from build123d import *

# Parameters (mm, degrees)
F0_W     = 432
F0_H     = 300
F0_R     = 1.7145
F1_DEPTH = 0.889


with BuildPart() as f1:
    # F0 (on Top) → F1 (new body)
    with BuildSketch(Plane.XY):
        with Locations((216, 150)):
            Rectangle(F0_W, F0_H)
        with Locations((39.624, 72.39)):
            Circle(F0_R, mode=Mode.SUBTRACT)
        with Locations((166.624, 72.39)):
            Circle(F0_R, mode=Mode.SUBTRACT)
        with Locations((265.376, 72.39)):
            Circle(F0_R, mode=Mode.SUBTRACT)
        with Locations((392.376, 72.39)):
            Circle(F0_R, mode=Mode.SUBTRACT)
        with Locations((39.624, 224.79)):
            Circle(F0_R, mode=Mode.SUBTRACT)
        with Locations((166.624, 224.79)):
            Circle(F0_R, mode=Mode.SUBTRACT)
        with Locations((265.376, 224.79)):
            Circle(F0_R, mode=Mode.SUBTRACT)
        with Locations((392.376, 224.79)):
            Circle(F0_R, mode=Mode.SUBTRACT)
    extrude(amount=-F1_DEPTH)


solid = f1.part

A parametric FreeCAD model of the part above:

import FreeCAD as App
import Part
import Sketcher
from FreeCAD import Vector


def add_polygon(sketch, points):
    """Adds a closed chain of lines whose ends are joined by coincident constraints."""
    first, n = sketch.GeometryCount, len(points)
    for a, b in zip(points, points[1:] + points[:1]):
        sketch.addGeometry(Part.LineSegment(App.Vector(*a, 0), App.Vector(*b, 0)), False)
    for i in range(n):
        sketch.addConstraint(Sketcher.Constraint("Coincident", first + i, 2, first + (i + 1) % n, 1))

doc = App.newDocument("Part")
params = doc.addObject("Spreadsheet::Sheet", "Params")
for row, (alias, value) in enumerate([
    ("sketch1_width", "432 mm"),
    ("sketch1_height", "300 mm"),
    ("pad1_length", "0.889 mm"),
], start=1):
    params.set(f"A{row}", alias)
    params.set(f"B{row}", "=" + value)
    params.setAlias(f"B{row}", alias)

body = doc.addObject("PartDesign::Body", "Body")

sketch1 = doc.addObject("Sketcher::SketchObject", "Sketch")
body.addObject(sketch1)
sketch1.AttachmentSupport = (doc.XY_Plane, [""])
sketch1.MapMode = "FlatFace"
add_polygon(sketch1, [(0, 300), (0, 0), (432, 0), (432, 300)])
sketch1.addGeometry(Part.Circle(Vector(39.6, 72.4, 0), Vector(0, 0, 1), 1.7), False)
sketch1.addGeometry(Part.Circle(Vector(166.6, 72.4, 0), Vector(0, 0, 1), 1.7), False)
sketch1.addGeometry(Part.Circle(Vector(265.4, 72.4, 0), Vector(0, 0, 1), 1.7), False)
sketch1.addGeometry(Part.Circle(Vector(392.4, 72.4, 0), Vector(0, 0, 1), 1.7), False)
sketch1.addGeometry(Part.Circle(Vector(39.6, 224.8, 0), Vector(0, 0, 1), 1.7), False)
sketch1.addGeometry(Part.Circle(Vector(166.6, 224.8, 0), Vector(0, 0, 1), 1.7), False)
sketch1.addGeometry(Part.Circle(Vector(265.4, 224.8, 0), Vector(0, 0, 1), 1.7), False)
sketch1.addGeometry(Part.Circle(Vector(392.4, 224.8, 0), Vector(0, 0, 1), 1.7), False)
sketch1.addConstraint(Sketcher.Constraint("Vertical", 0))
sketch1.addConstraint(Sketcher.Constraint("Horizontal", 1))
sketch1.addConstraint(Sketcher.Constraint("Vertical", 2))
sketch1.addConstraint(Sketcher.Constraint("Horizontal", 3))
sketch1.addConstraint(Sketcher.Constraint("Coincident", 0, 2, -1, 1))
sketch1.addConstraint(Sketcher.Constraint("Equal", 4, 5))
sketch1.addConstraint(Sketcher.Constraint("Equal", 5, 6))
sketch1.addConstraint(Sketcher.Constraint("Equal", 6, 7))
sketch1.addConstraint(Sketcher.Constraint("Equal", 7, 8))
sketch1.addConstraint(Sketcher.Constraint("Equal", 8, 9))
sketch1.addConstraint(Sketcher.Constraint("Equal", 9, 10))
sketch1.addConstraint(Sketcher.Constraint("Equal", 10, 11))
sketch1.addConstraint(Sketcher.Constraint("Horizontal", 4, 3, 5, 3))
sketch1.addConstraint(Sketcher.Constraint("Horizontal", 5, 3, 6, 3))
sketch1.addConstraint(Sketcher.Constraint("Horizontal", 6, 3, 7, 3))
sketch1.addConstraint(Sketcher.Constraint("Horizontal", 8, 3, 9, 3))
sketch1.addConstraint(Sketcher.Constraint("Horizontal", 9, 3, 10, 3))
sketch1.addConstraint(Sketcher.Constraint("Horizontal", 10, 3, 11, 3))
sketch1.addConstraint(Sketcher.Constraint("Vertical", 4, 3, 8, 3))
sketch1.addConstraint(Sketcher.Constraint("Vertical", 5, 3, 9, 3))
sketch1.addConstraint(Sketcher.Constraint("Vertical", 6, 3, 10, 3))
sketch1.addConstraint(Sketcher.Constraint("Vertical", 7, 3, 11, 3))
sketch1.addConstraint(Sketcher.Constraint("DistanceX", 1, 1, 1, 2, 432.0))
sketch1.addConstraint(Sketcher.Constraint("DistanceY", 0, 2, 0, 1, 300.0))
sketch1.addConstraint(Sketcher.Constraint("Diameter", 4, 3.429))
sketch1.addConstraint(Sketcher.Constraint("DistanceX", 4, 3, 5, 3, 127.0))
sketch1.addConstraint(Sketcher.Constraint("DistanceX", 6, 3, 7, 3, 127.0))
sketch1.addConstraint(Sketcher.Constraint("DistanceY", 4, 3, 8, 3, 152.4))
sketch1.addConstraint(Sketcher.Constraint("DistanceY", -1, 1, 4, 3, 72.39))
sketch1.addConstraint(Sketcher.Constraint("DistanceX", -1, 1, 4, 3, 39.624))
sketch1.addConstraint(Sketcher.Constraint("DistanceX", -1, 1, 6, 3, 265.376))
sketch1.setExpression("Constraints[26]", "Params.sketch1_width")
sketch1.setExpression("Constraints[27]", "Params.sketch1_height")
pad1 = doc.addObject("PartDesign::Pad", "Pad")
body.addObject(pad1)
pad1.Profile = sketch1
pad1.setExpression("Length", "Params.pad1_length")
pad1.Reversed = True

doc.recompute()
